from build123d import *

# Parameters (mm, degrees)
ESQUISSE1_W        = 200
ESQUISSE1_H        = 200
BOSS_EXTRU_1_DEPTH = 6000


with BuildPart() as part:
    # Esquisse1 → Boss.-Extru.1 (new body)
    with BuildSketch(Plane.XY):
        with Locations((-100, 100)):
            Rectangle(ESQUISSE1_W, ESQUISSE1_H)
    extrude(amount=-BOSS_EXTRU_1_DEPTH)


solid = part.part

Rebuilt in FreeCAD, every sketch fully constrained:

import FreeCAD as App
import Part
import Sketcher
Q = App.Units.Quantity

doc = App.newDocument("Part")
body = doc.addObject("PartDesign::Body", "Body")

sketch1 = body.newObject("Sketcher::SketchObject", "Sketch")
sketch1.AttachmentSupport = (doc.getObject("XY_Plane"), [""])
sketch1.MapMode = "FlatFace"
sketch1.addGeometry([
    Part.LineSegment(App.Vector(-200, 200, 0), App.Vector(-200, 0, 0)),
    Part.LineSegment(App.Vector(-200, 0, 0), App.Vector(0, 0, 0)),
    Part.LineSegment(App.Vector(0, 0, 0), App.Vector(0, 200, 0)),
    Part.LineSegment(App.Vector(0, 200, 0), App.Vector(-200, 200, 0)),
], False)
sketch1.addConstraint([
    Sketcher.Constraint("Coincident", 0, 2, 1, 1),
    Sketcher.Constraint("Coincident", 1, 2, 2, 1),
    Sketcher.Constraint("Coincident", 2, 2, 3, 1),
    Sketcher.Constraint("Coincident", 3, 2, 0, 1),
    Sketcher.Constraint("Vertical", 0),
    Sketcher.Constraint("Horizontal", 1),
    Sketcher.Constraint("Vertical", 2),
    Sketcher.Constraint("Horizontal", 3),
    Sketcher.Constraint("Coincident", 1, 2, -1, 1),
    Sketcher.Constraint("Equal", 3, 0),
    Sketcher.Constraint("DistanceX", 1, 1, 1, 2, Q("200 mm")),
])
pad1 = body.newObject("PartDesign::Pad", "Pad")
pad1.Profile = sketch1
pad1.Length = 6000
pad1.Reversed = True

doc.recompute()
